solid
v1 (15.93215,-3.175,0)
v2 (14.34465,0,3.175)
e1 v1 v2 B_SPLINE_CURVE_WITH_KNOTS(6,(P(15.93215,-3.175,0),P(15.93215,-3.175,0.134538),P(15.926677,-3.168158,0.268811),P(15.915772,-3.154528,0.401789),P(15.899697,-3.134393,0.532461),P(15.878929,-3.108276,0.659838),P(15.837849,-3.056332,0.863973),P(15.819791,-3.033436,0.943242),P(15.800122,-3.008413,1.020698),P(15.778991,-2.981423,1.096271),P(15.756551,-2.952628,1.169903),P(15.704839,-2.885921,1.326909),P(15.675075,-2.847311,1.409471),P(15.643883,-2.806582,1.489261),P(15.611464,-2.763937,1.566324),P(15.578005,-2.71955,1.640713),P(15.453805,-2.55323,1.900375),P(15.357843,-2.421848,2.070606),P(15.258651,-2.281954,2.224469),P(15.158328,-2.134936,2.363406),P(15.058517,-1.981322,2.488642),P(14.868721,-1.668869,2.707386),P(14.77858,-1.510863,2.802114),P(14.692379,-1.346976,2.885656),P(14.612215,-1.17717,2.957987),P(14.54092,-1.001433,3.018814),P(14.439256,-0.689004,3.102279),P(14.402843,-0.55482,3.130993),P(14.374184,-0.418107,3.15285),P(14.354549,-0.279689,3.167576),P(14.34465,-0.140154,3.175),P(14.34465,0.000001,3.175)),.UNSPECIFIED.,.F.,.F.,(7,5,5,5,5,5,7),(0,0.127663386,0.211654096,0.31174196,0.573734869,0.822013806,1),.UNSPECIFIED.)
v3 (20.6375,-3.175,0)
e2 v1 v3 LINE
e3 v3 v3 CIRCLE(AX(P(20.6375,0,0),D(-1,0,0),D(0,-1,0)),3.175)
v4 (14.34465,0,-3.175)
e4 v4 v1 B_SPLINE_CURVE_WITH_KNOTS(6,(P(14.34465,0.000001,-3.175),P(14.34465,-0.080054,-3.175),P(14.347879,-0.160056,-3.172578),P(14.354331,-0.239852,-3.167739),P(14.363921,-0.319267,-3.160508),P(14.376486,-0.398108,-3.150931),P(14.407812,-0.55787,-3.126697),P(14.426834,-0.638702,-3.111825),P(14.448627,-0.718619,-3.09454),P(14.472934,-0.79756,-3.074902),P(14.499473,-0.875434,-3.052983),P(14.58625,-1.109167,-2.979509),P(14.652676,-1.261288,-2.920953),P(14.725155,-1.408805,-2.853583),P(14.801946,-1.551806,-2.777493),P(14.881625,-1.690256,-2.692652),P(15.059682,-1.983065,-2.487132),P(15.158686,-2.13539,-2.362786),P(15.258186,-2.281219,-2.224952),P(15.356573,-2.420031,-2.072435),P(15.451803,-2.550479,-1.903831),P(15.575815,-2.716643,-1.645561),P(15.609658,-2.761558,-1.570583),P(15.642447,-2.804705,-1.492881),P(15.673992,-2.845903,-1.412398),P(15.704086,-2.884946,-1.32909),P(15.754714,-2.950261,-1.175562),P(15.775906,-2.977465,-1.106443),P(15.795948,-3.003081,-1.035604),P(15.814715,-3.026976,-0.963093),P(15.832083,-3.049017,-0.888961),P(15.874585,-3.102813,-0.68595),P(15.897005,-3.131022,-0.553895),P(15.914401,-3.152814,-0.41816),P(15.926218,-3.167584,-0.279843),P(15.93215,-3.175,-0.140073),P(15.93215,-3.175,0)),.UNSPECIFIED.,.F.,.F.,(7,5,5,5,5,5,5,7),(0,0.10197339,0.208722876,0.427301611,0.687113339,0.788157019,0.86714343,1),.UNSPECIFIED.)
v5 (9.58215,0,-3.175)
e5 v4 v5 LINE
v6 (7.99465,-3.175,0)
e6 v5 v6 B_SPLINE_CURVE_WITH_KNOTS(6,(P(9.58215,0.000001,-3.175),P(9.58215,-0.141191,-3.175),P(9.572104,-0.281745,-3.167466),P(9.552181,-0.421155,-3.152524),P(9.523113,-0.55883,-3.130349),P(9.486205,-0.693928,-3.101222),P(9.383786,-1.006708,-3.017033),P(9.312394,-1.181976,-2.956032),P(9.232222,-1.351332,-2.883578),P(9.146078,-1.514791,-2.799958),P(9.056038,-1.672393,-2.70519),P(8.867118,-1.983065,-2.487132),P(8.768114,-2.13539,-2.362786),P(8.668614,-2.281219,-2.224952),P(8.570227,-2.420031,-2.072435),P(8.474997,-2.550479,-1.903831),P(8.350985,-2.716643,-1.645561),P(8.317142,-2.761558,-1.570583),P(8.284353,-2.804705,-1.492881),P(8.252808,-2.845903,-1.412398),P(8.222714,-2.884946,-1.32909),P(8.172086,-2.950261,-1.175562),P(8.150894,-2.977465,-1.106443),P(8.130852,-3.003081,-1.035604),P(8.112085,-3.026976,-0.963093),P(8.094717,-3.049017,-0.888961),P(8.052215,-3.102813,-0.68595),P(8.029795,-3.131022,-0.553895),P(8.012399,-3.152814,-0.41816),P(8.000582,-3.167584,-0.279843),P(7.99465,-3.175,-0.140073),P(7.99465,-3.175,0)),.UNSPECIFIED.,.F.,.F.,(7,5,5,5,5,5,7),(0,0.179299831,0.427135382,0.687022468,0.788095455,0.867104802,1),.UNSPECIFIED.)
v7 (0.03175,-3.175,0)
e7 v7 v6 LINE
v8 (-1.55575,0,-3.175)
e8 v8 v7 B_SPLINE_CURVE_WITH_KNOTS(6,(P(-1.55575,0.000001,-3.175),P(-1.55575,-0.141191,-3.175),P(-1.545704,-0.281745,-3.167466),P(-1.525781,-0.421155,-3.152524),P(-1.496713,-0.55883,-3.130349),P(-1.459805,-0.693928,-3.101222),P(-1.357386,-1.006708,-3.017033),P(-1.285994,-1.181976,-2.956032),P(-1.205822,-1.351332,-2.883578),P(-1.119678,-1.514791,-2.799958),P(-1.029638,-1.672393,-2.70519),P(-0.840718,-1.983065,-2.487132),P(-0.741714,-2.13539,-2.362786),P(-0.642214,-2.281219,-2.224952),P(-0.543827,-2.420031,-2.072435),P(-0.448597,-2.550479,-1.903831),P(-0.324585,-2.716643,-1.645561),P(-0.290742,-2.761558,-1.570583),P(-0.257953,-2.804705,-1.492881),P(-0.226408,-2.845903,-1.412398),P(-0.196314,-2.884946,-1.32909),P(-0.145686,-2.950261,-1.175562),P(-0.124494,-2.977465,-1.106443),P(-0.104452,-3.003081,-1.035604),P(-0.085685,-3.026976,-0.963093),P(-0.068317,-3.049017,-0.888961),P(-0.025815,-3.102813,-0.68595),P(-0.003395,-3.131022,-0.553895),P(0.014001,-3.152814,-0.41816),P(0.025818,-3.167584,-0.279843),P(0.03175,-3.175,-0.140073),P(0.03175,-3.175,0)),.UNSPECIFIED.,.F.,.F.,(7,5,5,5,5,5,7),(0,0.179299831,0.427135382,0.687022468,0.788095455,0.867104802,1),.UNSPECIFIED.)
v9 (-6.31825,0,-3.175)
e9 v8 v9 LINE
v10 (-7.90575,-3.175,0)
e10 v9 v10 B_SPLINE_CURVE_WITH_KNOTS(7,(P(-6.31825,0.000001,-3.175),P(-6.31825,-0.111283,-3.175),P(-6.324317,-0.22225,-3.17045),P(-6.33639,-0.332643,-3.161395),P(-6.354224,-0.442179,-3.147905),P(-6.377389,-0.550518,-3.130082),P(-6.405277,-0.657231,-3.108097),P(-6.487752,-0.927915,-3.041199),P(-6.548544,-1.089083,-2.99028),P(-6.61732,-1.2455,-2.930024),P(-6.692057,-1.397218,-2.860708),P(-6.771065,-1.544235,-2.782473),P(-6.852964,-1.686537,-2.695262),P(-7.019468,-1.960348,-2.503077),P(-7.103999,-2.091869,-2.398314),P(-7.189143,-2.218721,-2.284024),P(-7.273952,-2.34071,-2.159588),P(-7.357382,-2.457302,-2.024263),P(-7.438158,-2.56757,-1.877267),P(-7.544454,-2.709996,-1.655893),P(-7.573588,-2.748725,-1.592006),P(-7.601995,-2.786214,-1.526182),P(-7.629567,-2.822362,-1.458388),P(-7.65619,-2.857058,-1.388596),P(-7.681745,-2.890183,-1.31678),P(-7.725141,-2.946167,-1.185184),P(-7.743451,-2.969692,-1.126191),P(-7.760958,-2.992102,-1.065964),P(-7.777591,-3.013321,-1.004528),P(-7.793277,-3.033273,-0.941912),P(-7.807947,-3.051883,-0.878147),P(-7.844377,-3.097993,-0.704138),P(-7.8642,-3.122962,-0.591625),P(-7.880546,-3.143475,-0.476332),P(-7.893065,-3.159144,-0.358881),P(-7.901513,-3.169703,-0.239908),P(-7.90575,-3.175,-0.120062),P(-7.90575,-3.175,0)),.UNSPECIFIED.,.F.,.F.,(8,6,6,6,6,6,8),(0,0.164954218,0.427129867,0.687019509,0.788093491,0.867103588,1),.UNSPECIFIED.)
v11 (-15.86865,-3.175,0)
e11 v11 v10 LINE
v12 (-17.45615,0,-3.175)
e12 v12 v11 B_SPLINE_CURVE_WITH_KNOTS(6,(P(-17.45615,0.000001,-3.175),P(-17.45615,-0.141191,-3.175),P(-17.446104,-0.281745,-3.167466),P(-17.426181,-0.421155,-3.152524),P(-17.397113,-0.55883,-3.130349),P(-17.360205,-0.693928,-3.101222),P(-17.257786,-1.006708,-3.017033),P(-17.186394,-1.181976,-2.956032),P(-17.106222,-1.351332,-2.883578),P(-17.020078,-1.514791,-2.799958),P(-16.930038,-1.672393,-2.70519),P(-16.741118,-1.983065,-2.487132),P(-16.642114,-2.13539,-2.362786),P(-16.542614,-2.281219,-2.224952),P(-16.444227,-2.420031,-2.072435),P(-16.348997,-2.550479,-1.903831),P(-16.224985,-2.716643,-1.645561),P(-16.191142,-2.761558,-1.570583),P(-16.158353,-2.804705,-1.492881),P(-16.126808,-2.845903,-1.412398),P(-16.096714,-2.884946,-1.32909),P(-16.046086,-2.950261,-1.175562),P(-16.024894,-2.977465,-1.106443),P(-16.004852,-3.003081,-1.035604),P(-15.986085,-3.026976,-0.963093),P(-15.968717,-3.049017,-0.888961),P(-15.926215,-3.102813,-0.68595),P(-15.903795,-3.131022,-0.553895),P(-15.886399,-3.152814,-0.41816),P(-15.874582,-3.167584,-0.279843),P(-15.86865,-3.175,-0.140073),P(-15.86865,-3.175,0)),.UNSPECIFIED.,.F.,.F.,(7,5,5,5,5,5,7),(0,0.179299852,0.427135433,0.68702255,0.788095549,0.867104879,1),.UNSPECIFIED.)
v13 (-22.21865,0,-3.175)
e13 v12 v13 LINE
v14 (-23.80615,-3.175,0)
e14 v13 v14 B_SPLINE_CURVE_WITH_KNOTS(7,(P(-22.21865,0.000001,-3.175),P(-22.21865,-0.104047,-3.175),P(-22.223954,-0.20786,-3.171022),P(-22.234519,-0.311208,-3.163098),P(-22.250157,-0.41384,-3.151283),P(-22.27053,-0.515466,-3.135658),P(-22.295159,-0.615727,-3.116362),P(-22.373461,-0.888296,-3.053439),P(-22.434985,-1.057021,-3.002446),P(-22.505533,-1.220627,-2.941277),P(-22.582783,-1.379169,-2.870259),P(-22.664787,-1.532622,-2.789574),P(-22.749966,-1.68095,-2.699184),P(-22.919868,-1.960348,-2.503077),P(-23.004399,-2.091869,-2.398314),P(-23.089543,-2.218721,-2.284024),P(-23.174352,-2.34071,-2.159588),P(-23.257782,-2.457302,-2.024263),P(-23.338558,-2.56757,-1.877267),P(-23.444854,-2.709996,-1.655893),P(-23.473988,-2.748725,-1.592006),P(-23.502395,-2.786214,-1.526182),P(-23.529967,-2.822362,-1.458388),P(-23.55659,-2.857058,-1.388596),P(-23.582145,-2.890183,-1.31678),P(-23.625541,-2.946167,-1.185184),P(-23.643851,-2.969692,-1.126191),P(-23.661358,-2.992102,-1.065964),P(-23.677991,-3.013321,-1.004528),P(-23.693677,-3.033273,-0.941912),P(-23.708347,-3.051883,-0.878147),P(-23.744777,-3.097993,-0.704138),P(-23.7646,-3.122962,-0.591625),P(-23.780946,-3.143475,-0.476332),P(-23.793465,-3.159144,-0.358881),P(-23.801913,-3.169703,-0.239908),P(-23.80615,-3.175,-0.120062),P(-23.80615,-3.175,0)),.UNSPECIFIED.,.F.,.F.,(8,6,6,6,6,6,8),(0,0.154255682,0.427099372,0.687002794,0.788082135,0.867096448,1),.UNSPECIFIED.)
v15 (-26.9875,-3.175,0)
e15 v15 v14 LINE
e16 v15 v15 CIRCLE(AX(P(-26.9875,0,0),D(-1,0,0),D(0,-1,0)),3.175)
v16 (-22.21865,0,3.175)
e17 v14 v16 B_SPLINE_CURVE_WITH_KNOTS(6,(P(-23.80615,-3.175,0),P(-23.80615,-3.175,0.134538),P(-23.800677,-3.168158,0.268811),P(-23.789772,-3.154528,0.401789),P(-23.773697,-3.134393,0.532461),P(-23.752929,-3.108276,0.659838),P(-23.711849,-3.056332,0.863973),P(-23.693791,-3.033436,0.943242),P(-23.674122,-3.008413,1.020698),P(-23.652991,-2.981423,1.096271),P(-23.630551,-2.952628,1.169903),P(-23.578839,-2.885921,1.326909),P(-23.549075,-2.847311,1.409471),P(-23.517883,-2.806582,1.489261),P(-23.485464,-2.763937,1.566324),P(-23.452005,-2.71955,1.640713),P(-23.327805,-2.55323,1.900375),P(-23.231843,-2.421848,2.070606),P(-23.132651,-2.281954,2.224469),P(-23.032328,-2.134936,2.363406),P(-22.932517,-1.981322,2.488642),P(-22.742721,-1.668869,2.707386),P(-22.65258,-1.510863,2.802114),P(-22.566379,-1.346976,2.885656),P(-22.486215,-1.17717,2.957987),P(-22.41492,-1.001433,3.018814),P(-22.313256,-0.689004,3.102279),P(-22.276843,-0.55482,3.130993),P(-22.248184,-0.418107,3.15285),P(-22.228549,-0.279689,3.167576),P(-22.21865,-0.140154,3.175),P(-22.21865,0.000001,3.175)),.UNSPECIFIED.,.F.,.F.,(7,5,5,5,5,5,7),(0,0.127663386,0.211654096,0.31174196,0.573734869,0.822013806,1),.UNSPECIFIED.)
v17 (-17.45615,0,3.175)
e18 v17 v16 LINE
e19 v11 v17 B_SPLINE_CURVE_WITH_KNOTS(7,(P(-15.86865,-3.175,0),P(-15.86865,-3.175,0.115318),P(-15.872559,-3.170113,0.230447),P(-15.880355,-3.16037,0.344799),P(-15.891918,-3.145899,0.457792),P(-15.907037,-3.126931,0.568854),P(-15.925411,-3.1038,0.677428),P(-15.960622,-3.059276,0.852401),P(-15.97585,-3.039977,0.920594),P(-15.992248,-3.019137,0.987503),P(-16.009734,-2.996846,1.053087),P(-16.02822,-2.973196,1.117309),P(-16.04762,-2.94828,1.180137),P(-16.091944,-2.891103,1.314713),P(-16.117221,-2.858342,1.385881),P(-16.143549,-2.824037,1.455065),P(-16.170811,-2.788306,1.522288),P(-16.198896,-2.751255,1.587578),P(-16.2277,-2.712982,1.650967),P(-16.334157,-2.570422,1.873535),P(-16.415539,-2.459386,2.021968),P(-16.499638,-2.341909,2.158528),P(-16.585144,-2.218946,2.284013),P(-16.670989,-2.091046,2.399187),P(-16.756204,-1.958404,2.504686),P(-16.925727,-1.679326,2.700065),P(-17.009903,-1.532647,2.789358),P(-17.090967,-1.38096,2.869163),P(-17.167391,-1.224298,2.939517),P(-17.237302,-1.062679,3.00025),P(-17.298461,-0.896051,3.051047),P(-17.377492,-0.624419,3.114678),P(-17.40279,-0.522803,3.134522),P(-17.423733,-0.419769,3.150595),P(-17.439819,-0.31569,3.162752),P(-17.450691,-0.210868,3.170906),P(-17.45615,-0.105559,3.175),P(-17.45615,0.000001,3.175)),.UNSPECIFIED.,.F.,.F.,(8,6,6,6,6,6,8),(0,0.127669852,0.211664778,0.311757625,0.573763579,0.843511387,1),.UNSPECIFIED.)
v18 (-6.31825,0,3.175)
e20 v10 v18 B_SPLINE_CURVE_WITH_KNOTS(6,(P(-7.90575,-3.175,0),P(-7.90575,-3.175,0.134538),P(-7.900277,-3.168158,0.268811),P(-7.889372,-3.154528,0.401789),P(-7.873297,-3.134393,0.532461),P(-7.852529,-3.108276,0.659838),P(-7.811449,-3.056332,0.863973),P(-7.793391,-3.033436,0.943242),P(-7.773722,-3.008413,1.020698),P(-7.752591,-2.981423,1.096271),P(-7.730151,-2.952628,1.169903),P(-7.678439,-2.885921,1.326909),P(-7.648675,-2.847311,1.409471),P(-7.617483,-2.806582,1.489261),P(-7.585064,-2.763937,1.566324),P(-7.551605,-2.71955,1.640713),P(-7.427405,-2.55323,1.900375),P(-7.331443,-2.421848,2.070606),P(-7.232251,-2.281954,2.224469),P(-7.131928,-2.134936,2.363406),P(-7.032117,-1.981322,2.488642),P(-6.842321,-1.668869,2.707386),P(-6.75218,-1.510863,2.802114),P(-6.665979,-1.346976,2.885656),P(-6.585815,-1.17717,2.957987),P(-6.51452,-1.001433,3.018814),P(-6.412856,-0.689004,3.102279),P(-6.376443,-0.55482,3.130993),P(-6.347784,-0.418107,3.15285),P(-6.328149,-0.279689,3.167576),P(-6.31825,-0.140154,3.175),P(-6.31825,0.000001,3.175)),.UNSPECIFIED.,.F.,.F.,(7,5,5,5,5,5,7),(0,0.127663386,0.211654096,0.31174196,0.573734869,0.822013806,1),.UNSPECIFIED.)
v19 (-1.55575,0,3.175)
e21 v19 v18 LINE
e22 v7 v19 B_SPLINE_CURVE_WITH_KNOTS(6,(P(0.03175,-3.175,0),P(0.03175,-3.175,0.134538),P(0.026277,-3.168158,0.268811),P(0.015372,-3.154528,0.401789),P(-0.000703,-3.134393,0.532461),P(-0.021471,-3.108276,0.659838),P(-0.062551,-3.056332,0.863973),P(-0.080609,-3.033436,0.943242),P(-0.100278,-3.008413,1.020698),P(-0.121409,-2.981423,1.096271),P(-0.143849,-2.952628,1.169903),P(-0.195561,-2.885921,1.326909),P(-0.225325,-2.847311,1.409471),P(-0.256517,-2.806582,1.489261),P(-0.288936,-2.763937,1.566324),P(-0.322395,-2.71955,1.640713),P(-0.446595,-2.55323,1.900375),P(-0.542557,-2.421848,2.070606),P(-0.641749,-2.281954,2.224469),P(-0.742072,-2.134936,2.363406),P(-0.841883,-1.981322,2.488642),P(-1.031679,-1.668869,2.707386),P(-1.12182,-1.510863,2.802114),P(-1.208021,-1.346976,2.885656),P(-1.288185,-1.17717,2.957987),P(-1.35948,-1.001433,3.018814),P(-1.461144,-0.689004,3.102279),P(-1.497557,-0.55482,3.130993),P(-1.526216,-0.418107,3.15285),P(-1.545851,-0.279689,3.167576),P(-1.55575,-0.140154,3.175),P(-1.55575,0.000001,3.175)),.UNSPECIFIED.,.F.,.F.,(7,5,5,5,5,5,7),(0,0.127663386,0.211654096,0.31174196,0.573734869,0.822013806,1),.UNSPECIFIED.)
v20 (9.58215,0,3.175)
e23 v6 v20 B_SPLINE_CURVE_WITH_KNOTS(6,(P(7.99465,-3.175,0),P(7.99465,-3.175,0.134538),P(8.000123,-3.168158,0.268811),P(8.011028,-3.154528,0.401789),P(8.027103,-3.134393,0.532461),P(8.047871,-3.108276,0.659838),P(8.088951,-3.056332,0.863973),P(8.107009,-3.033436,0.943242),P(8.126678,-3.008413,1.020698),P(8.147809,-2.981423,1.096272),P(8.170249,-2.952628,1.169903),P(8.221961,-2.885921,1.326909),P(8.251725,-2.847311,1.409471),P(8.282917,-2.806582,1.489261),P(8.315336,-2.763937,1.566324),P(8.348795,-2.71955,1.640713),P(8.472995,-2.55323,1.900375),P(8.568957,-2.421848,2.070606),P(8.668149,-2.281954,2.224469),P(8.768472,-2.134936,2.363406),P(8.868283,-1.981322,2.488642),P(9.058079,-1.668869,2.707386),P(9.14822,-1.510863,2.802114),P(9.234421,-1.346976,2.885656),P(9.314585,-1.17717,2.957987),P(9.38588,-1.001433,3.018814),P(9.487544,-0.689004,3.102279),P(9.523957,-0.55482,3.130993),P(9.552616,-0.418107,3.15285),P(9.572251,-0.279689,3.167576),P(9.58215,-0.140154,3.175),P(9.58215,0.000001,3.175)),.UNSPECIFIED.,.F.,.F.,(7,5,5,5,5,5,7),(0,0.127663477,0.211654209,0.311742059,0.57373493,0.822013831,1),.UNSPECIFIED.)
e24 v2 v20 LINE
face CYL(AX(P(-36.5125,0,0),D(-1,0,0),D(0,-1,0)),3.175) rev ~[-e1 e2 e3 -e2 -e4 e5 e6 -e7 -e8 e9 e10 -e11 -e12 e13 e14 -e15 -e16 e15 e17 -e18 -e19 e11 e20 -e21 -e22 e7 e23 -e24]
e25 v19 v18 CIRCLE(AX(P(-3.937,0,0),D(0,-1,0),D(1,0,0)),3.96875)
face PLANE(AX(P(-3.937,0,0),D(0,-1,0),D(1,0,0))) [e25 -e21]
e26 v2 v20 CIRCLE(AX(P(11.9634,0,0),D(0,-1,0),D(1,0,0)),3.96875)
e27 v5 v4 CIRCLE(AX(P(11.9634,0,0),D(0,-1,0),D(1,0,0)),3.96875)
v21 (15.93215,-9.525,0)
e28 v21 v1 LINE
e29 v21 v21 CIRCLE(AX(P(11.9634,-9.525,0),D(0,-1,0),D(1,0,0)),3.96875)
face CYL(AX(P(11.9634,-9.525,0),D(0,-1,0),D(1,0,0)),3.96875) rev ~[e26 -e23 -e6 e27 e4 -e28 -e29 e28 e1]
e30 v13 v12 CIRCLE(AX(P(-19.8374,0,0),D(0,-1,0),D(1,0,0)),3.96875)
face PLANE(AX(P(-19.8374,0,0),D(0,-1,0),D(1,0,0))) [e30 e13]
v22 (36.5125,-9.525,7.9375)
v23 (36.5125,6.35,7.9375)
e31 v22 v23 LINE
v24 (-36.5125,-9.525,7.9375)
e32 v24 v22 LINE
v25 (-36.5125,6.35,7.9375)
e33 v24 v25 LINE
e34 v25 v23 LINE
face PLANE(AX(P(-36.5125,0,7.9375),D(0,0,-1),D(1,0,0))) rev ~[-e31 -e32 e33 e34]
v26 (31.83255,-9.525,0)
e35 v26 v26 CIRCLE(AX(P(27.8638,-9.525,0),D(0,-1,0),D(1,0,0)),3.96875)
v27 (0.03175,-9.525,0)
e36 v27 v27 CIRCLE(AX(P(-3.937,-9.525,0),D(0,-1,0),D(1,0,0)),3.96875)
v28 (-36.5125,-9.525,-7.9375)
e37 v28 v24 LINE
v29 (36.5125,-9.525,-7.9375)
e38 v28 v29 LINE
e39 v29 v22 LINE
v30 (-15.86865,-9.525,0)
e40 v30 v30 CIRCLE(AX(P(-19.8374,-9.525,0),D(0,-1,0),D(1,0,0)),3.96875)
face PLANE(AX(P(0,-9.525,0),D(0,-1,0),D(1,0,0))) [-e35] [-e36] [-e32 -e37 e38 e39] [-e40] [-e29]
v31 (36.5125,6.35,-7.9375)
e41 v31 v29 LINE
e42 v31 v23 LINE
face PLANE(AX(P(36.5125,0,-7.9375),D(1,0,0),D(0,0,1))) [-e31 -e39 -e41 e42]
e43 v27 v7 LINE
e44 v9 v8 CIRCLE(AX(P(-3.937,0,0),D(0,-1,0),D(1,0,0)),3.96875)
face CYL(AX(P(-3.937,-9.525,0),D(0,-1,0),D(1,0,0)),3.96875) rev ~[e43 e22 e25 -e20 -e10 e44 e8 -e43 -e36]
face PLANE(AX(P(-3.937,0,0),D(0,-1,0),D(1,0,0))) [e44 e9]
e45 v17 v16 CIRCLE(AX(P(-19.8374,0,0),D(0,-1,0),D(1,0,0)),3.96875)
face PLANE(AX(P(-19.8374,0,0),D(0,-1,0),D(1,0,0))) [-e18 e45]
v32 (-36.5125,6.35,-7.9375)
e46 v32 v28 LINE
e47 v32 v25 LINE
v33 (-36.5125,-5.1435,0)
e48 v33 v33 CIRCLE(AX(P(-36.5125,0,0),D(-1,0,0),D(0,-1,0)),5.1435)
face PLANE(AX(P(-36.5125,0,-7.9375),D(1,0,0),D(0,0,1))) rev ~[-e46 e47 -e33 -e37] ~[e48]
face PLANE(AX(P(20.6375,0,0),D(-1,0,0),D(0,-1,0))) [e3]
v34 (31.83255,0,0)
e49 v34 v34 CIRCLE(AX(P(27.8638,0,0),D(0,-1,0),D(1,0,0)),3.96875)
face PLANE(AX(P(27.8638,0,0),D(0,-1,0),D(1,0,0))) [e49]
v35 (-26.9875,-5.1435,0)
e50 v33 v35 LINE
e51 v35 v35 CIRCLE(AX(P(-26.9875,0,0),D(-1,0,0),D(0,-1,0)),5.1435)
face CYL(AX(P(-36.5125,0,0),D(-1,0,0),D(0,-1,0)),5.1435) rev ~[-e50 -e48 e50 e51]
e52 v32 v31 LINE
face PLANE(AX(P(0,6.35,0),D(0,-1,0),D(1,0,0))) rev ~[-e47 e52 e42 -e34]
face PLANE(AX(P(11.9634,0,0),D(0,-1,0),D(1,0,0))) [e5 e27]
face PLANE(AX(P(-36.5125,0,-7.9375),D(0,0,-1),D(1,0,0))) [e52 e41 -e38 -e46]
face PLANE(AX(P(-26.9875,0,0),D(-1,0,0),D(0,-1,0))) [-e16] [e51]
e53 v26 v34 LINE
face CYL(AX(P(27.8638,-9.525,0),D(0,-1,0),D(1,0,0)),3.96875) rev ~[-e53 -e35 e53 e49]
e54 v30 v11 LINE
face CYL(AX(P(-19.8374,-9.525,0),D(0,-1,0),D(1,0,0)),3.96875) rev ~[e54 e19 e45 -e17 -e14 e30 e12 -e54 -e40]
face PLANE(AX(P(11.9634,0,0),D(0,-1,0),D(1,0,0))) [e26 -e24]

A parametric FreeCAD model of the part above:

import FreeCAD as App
import Part
import Sketcher

V = App.Vector
Q = App.Units.Quantity

doc = App.newDocument("Part")
params = doc.addObject("Spreadsheet::Sheet", "Params")
for row, (alias, value) in enumerate([
    ("sketch1_width", "2.875 in"),
    ("sketch1_height", "0.625 in"),
    ("pad1_length", "0.375 in"),
    ("pad1_length2", "0.25 in"),
    ("sketch2_diameter", "0.405 in"),
    ("pocket1_length", "0.375 in"),
    ("sketch3_diameter", "0.25 in"),
    ("pocket2_length", "2.25 in"),
    ("sketch4_diameter", "0.3125 in"),
    ("pocket3_length", "0.375 in"),
], start=1):
    params.set(f"A{row}", alias)
    params.set(f"B{row}", "=" + value)
    params.setAlias(f"B{row}", alias)

body = doc.addObject("PartDesign::Body", "Body")

# Sketch on XZ plane
sketch1 = body.newObject("Sketcher::SketchObject", "Sketch")
sketch1.AttachmentSupport = (doc.getObject("XZ_Plane"), [""])
sketch1.MapMode = "FlatFace"
sketch1.addGeometry([
    Part.LineSegment(V(-37, 8, 0), V(-37, -8, 0)),
    Part.LineSegment(V(-37, -8, 0), V(37, -8, 0)),
    Part.LineSegment(V(37, -8, 0), V(37, 8, 0)),
    Part.LineSegment(V(37, 8, 0), V(-37, 8, 0)),
], False)
sketch1.addConstraint([
    Sketcher.Constraint("Coincident", 0, 2, 1, 1),
    Sketcher.Constraint("Coincident", 1, 2, 2, 1),
    Sketcher.Constraint("Coincident", 2, 2, 3, 1),
    Sketcher.Constraint("Coincident", 3, 2, 0, 1),
    Sketcher.Constraint("Vertical", 0),
    Sketcher.Constraint("Horizontal", 1),
    Sketcher.Constraint("Vertical", 2),
    Sketcher.Constraint("Horizontal", 3),
    Sketcher.Constraint("Symmetric", 0, 2, 2, 2, -1, 1),
    Sketcher.Constraint("DistanceX", 1, 1, 1, 2, Q("2.875 in")),
    Sketcher.Constraint("DistanceY", 0, 2, 0, 1, Q("0.625 in")),
])
sketch1.setExpression("Constraints[9]", "Params.sketch1_width")
sketch1.setExpression("Constraints[10]", "Params.sketch1_height")
pad1 = body.newObject("PartDesign::Pad", "Pad")
pad1.Profile = sketch1
pad1.Type = "TwoLengths"
pad1.setExpression("Length", "Params.pad1_length")
pad1.setExpression("Length2", "Params.pad1_length2")

# Sketch on YZ plane
sketch2 = body.newObject("Sketcher::SketchObject", "Sketch001")
sketch2.AttachmentSupport = (doc.getObject("YZ_Plane"), [""])
sketch2.MapMode = "FlatFace"
sketch2.AttachmentOffset = App.Placement(V(0, 0, -1.4375 * 25.4), App.Rotation())
sketch2.addGeometry(Part.Circle(V(0, 0, 0), V(0, 0, 1), 5), False)
sketch2.addConstraint([
    Sketcher.Constraint("Coincident", 0, 3, -1, 1),
    Sketcher.Constraint("Diameter", 0, Q("0.405 in")),
])
sketch2.setExpression("Constraints[1]", "Params.sketch2_diameter")
pocket1 = body.newObject("PartDesign::Pocket", "Pocket")
pocket1.Profile = sketch2
pocket1.setExpression("Length", "Params.pocket1_length")
pocket1.Reversed = True

# Sketch on YZ plane
sketch3 = body.newObject("Sketcher::SketchObject", "Sketch002")
sketch3.AttachmentSupport = (doc.getObject("YZ_Plane"), [""])
sketch3.MapMode = "FlatFace"
sketch3.AttachmentOffset = App.Placement(V(0, 0, -1.4375 * 25.4), App.Rotation())
sketch3.addGeometry(Part.Circle(V(0, 0, 0), V(0, 0, 1), 3.2), False)
sketch3.addConstraint([
    Sketcher.Constraint("Coincident", 0, 3, -1, 1),
    Sketcher.Constraint("Diameter", 0, Q("0.25 in")),
])
sketch3.setExpression("Constraints[1]", "Params.sketch3_diameter")
pocket2 = body.newObject("PartDesign::Pocket", "Pocket001")
pocket2.Profile = sketch3
pocket2.setExpression("Length", "Params.pocket2_length")
pocket2.Reversed = True

# Sketch on XZ plane
sketch4 = body.newObject("Sketcher::SketchObject", "Sketch003")
sketch4.AttachmentSupport = (doc.getObject("XZ_Plane"), [""])
sketch4.MapMode = "FlatFace"
sketch4.AttachmentOffset = App.Placement(V(0, 0, 0.375 * 25.4), App.Rotation())
sketch4.addGeometry([
    Part.Circle(V(-3.9, 0, 0), V(0, 0, 1), 4),
    Part.Circle(V(-19.8, 0, 0), V(0, 0, 1), 4),
    Part.Circle(V(12, 0, 0), V(0, 0, 1), 4),
    Part.Circle(V(27.9, 0, 0), V(0, 0, 1), 4),
], False)
sketch4.addConstraint([
    Sketcher.Constraint("Equal", 0, 1),
    Sketcher.Constraint("Equal", 1, 2),
    Sketcher.Constraint("Equal", 2, 3),
    Sketcher.Constraint("PointOnObject", 0, 3, -1),
    Sketcher.Constraint("PointOnObject", 1, 3, -1),
    Sketcher.Constraint("PointOnObject", 2, 3, -1),
    Sketcher.Constraint("PointOnObject", 3, 3, -1),
    Sketcher.Constraint("Diameter", 0, Q("0.3125 in")),
    Sketcher.Constraint("DistanceX", 0, 3, -1, 1, Q("0.155 in")),
    Sketcher.Constraint("DistanceX", 1, 3, -1, 1, Q("0.781 in")),
    Sketcher.Constraint("DistanceX", -1, 1, 2, 3, Q("0.471 in")),
    Sketcher.Constraint("DistanceX", -1, 1, 3, 3, Q("1.097 in")),
])
sketch4.setExpression("Constraints[7]", "Params.sketch4_diameter")
pocket3 = body.newObject("PartDesign::Pocket", "Pocket002")
pocket3.Profile = sketch4
pocket3.setExpression("Length", "Params.pocket3_length")

doc.recompute()
